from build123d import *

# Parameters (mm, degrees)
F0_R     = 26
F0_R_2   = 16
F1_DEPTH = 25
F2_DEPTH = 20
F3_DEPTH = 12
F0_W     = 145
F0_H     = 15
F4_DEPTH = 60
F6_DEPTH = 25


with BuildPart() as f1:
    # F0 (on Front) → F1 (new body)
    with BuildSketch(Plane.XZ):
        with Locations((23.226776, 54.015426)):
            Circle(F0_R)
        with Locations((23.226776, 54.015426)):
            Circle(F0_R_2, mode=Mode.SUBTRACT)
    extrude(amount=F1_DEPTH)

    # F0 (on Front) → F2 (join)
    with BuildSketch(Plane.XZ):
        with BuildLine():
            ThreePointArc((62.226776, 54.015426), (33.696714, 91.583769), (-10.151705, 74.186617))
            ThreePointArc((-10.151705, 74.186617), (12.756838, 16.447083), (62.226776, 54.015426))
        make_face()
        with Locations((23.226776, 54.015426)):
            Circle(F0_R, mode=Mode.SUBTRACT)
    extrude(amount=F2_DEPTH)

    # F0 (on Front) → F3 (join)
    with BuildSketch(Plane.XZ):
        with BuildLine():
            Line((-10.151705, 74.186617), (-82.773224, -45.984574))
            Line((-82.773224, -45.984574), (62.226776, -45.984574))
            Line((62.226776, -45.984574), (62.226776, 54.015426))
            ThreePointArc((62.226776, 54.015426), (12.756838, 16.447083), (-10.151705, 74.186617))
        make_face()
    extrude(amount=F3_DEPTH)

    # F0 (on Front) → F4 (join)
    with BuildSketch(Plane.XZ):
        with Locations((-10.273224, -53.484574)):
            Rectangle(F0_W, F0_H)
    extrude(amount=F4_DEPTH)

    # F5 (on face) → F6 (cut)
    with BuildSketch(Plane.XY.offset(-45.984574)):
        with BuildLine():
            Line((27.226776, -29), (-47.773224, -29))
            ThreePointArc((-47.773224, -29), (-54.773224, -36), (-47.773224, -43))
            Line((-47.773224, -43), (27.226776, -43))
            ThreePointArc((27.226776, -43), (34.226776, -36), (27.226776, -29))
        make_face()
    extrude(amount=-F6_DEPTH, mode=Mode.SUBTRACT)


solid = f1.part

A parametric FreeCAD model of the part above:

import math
import FreeCAD as App
import Part
import Sketcher
from FreeCAD import Vector
Q = App.Units.Quantity


def add_polygon(sketch, points):
    """Adds a closed chain of lines whose ends are joined by coincident constraints."""
    first, n = sketch.GeometryCount, len(points)
    for a, b in zip(points, points[1:] + points[:1]):
        sketch.addGeometry(Part.LineSegment(App.Vector(*a, 0), App.Vector(*b, 0)), False)
    for i in range(n):
        sketch.addConstraint(Sketcher.Constraint("Coincident", first + i, 2, first + (i + 1) % n, 1))

doc = App.newDocument("Part")
body = doc.addObject("PartDesign::Body", "Body")

# Sketch on XZ plane
sketch1 = body.newObject("Sketcher::SketchObject", "Sketch")
sketch1.AttachmentSupport = (doc.getObject("XZ_Plane"), [""])
sketch1.MapMode = "FlatFace"
sketch1.addGeometry(Part.Circle(Vector(23.226776, 54.015426, 0), Vector(0, 0, 1), 26), False)
sketch1.addGeometry(Part.Circle(Vector(23.226776, 54.015426, 0), Vector(0, 0, 1), 16), False)
sketch1.addConstraint(Sketcher.Constraint("Coincident", 1, 3, 0, 3))
sketch1.addConstraint(Sketcher.Constraint("Diameter", 0, Q("52 mm")))
sketch1.addConstraint(Sketcher.Constraint("Diameter", 1, Q("32 mm")))
sketch1.addConstraint(Sketcher.Constraint("DistanceX", -1, 1, 0, 3, Q("23.226776 mm")))
sketch1.addConstraint(Sketcher.Constraint("DistanceY", -1, 1, 0, 3, Q("54.015426 mm")))
pad1 = body.newObject("PartDesign::Pad", "Pad")
pad1.Profile = sketch1
pad1.Length = 25

# Sketch on XZ plane
sketch2 = body.newObject("Sketcher::SketchObject", "Sketch001")
sketch2.AttachmentSupport = (doc.getObject("XZ_Plane"), [""])
sketch2.MapMode = "FlatFace"
sketch2.addGeometry(Part.ArcOfCircle(Part.Circle(Vector(23.226777, 54.015426, 0), Vector(0, 0, 1), 38.999999), math.radians(-0.000001), math.radians(148.854709)), False)
sketch2.addGeometry(Part.ArcOfCircle(Part.Circle(Vector(23.226776, 54.015426, 0), Vector(0, 0, 1), 39), math.radians(148.854708), math.radians(360.000001)), False)
sketch2.addGeometry(Part.Circle(Vector(23.226776, 54.015426, 0), Vector(0, 0, 1), 26), False)
sketch2.addConstraint(Sketcher.Constraint("Tangent", 0, 1, 1, 2))
sketch2.addConstraint(Sketcher.Constraint("Coincident", 1, 1, 0, 2))
sketch2.addConstraint(Sketcher.Constraint("Coincident", 2, 3, 0, 3))
sketch2.addConstraint(Sketcher.Constraint("Horizontal", 2, 3, 0, 1))
sketch2.addConstraint(Sketcher.Constraint("Diameter", 2, Q("52 mm")))
sketch2.addConstraint(Sketcher.Constraint("Radius", 0, Q("38.999999 mm")))
sketch2.addConstraint(Sketcher.Constraint("DistanceX", 1, 1, 2, 3, Q("33.378481 mm")))
sketch2.addConstraint(Sketcher.Constraint("DistanceX", -1, 1, 0, 3, Q("23.226777 mm")))
sketch2.addConstraint(Sketcher.Constraint("DistanceY", -1, 1, 0, 3, Q("54.015426 mm")))
pad2 = body.newObject("PartDesign::Pad", "Pad001")
pad2.Profile = sketch2
pad2.Length = 20

# Sketch on XZ plane
sketch3 = body.newObject("Sketcher::SketchObject", "Sketch002")
sketch3.AttachmentSupport = (doc.getObject("XZ_Plane"), [""])
sketch3.MapMode = "FlatFace"
sketch3.addGeometry(Part.LineSegment(Vector(-10.151705, 74.186617, 0), Vector(-82.773224, -45.984574, 0)), False)
sketch3.addGeometry(Part.LineSegment(Vector(-82.773224, -45.984574, 0), Vector(62.226776, -45.984574, 0)), False)
sketch3.addGeometry(Part.LineSegment(Vector(62.226776, -45.984574, 0), Vector(62.226776, 54.015426, 0)), False)
sketch3.addGeometry(Part.ArcOfCircle(Part.Circle(Vector(23.226776, 54.015426, 0), Vector(0, 0, 1), 39), math.radians(148.854708), math.radians(360.000001)), False)
sketch3.addConstraint(Sketcher.Constraint("Coincident", 0, 2, 1, 1))
sketch3.addConstraint(Sketcher.Constraint("Coincident", 1, 2, 2, 1))
sketch3.addConstraint(Sketcher.Constraint("Tangent", 2, 2, 3, 2))
sketch3.addConstraint(Sketcher.Constraint("Tangent", 3, 1, 0, 1))
sketch3.addConstraint(Sketcher.Constraint("Horizontal", 1))
sketch3.addConstraint(Sketcher.Constraint("Vertical", 2))
sketch3.addConstraint(Sketcher.Constraint("Radius", 3, Q("39 mm")))
sketch3.addConstraint(Sketcher.Constraint("DistanceX", 1, 1, 1, 2, Q("145 mm")))
sketch3.addConstraint(Sketcher.Constraint("DistanceY", 2, 1, 2, 2, Q("100 mm")))
sketch3.addConstraint(Sketcher.Constraint("DistanceX", -1, 1, 3, 3, Q("23.226776 mm")))
sketch3.addConstraint(Sketcher.Constraint("DistanceY", -1, 1, 3, 3, Q("54.015426 mm")))
pad3 = body.newObject("PartDesign::Pad", "Pad002")
pad3.Profile = sketch3
pad3.Length = 12

# Sketch on XZ plane
sketch4 = body.newObject("Sketcher::SketchObject", "Sketch003")
sketch4.AttachmentSupport = (doc.getObject("XZ_Plane"), [""])
sketch4.MapMode = "FlatFace"
add_polygon(sketch4, [(-82.773224, -45.984574), (-82.773224, -60.984574), (62.226776, -60.984574), (62.226776, -45.984574)])  # lines 0-3
sketch4.addConstraint(Sketcher.Constraint("Vertical", 0))
sketch4.addConstraint(Sketcher.Constraint("Horizontal", 1))
sketch4.addConstraint(Sketcher.Constraint("Vertical", 2))
sketch4.addConstraint(Sketcher.Constraint("Horizontal", 3))
sketch4.addConstraint(Sketcher.Constraint("DistanceX", 1, 1, 1, 2, Q("145 mm")))
sketch4.addConstraint(Sketcher.Constraint("DistanceY", 0, 2, 0, 1, Q("15 mm")))
sketch4.addConstraint(Sketcher.Constraint("DistanceX", 0, 2, -1, 1, Q("82.773224 mm")))
sketch4.addConstraint(Sketcher.Constraint("DistanceY", 0, 2, -1, 1, Q("60.984574 mm")))
pad4 = body.newObject("PartDesign::Pad", "Pad003")
pad4.Profile = sketch4
pad4.Length = 60

# Sketch on XY plane
sketch5 = body.newObject("Sketcher::SketchObject", "Sketch004")
sketch5.AttachmentSupport = (doc.getObject("XY_Plane"), [""])
sketch5.MapMode = "FlatFace"
sketch5.AttachmentOffset = App.Placement(Vector(0, 0, -45.984574), App.Rotation())
sketch5.addGeometry(Part.LineSegment(Vector(27.226776, -29, 0), Vector(-47.773224, -29, 0)), False)
sketch5.addGeometry(Part.ArcOfCircle(Part.Circle(Vector(-47.773224, -36, 0), Vector(0, 0, 1), 7), math.radians(90), math.radians(270)), False)
sketch5.addGeometry(Part.LineSegment(Vector(-47.773224, -43, 0), Vector(27.226776, -43, 0)), False)
sketch5.addGeometry(Part.ArcOfCircle(Part.Circle(Vector(27.226776, -36, 0), Vector(0, 0, 1), 7), math.radians(-90), math.radians(90)), False)
sketch5.addConstraint(Sketcher.Constraint("Tangent", 0, 2, 1, 1))
sketch5.addConstraint(Sketcher.Constraint("Tangent", 1, 2, 2, 1))
sketch5.addConstraint(Sketcher.Constraint("Tangent", 2, 2, 3, 1))
sketch5.addConstraint(Sketcher.Constraint("Tangent", 3, 2, 0, 1))
sketch5.addConstraint(Sketcher.Constraint("Horizontal", 0))
sketch5.addConstraint(Sketcher.Constraint("Horizontal", 2))
sketch5.addConstraint(Sketcher.Constraint("Radius", 1, Q("7 mm")))
sketch5.addConstraint(Sketcher.Constraint("DistanceX", 0, 2, 0, 1, Q("75 mm")))
sketch5.addConstraint(Sketcher.Constraint("DistanceY", 1, 3, -1, 1, Q("36 mm")))
sketch5.addConstraint(Sketcher.Constraint("DistanceX", 1, 3, -1, 1, Q("47.773224 mm")))
pocket1 = body.newObject("PartDesign::Pocket", "Pocket")
pocket1.Profile = sketch5
pocket1.Length = 25

doc.recompute()
